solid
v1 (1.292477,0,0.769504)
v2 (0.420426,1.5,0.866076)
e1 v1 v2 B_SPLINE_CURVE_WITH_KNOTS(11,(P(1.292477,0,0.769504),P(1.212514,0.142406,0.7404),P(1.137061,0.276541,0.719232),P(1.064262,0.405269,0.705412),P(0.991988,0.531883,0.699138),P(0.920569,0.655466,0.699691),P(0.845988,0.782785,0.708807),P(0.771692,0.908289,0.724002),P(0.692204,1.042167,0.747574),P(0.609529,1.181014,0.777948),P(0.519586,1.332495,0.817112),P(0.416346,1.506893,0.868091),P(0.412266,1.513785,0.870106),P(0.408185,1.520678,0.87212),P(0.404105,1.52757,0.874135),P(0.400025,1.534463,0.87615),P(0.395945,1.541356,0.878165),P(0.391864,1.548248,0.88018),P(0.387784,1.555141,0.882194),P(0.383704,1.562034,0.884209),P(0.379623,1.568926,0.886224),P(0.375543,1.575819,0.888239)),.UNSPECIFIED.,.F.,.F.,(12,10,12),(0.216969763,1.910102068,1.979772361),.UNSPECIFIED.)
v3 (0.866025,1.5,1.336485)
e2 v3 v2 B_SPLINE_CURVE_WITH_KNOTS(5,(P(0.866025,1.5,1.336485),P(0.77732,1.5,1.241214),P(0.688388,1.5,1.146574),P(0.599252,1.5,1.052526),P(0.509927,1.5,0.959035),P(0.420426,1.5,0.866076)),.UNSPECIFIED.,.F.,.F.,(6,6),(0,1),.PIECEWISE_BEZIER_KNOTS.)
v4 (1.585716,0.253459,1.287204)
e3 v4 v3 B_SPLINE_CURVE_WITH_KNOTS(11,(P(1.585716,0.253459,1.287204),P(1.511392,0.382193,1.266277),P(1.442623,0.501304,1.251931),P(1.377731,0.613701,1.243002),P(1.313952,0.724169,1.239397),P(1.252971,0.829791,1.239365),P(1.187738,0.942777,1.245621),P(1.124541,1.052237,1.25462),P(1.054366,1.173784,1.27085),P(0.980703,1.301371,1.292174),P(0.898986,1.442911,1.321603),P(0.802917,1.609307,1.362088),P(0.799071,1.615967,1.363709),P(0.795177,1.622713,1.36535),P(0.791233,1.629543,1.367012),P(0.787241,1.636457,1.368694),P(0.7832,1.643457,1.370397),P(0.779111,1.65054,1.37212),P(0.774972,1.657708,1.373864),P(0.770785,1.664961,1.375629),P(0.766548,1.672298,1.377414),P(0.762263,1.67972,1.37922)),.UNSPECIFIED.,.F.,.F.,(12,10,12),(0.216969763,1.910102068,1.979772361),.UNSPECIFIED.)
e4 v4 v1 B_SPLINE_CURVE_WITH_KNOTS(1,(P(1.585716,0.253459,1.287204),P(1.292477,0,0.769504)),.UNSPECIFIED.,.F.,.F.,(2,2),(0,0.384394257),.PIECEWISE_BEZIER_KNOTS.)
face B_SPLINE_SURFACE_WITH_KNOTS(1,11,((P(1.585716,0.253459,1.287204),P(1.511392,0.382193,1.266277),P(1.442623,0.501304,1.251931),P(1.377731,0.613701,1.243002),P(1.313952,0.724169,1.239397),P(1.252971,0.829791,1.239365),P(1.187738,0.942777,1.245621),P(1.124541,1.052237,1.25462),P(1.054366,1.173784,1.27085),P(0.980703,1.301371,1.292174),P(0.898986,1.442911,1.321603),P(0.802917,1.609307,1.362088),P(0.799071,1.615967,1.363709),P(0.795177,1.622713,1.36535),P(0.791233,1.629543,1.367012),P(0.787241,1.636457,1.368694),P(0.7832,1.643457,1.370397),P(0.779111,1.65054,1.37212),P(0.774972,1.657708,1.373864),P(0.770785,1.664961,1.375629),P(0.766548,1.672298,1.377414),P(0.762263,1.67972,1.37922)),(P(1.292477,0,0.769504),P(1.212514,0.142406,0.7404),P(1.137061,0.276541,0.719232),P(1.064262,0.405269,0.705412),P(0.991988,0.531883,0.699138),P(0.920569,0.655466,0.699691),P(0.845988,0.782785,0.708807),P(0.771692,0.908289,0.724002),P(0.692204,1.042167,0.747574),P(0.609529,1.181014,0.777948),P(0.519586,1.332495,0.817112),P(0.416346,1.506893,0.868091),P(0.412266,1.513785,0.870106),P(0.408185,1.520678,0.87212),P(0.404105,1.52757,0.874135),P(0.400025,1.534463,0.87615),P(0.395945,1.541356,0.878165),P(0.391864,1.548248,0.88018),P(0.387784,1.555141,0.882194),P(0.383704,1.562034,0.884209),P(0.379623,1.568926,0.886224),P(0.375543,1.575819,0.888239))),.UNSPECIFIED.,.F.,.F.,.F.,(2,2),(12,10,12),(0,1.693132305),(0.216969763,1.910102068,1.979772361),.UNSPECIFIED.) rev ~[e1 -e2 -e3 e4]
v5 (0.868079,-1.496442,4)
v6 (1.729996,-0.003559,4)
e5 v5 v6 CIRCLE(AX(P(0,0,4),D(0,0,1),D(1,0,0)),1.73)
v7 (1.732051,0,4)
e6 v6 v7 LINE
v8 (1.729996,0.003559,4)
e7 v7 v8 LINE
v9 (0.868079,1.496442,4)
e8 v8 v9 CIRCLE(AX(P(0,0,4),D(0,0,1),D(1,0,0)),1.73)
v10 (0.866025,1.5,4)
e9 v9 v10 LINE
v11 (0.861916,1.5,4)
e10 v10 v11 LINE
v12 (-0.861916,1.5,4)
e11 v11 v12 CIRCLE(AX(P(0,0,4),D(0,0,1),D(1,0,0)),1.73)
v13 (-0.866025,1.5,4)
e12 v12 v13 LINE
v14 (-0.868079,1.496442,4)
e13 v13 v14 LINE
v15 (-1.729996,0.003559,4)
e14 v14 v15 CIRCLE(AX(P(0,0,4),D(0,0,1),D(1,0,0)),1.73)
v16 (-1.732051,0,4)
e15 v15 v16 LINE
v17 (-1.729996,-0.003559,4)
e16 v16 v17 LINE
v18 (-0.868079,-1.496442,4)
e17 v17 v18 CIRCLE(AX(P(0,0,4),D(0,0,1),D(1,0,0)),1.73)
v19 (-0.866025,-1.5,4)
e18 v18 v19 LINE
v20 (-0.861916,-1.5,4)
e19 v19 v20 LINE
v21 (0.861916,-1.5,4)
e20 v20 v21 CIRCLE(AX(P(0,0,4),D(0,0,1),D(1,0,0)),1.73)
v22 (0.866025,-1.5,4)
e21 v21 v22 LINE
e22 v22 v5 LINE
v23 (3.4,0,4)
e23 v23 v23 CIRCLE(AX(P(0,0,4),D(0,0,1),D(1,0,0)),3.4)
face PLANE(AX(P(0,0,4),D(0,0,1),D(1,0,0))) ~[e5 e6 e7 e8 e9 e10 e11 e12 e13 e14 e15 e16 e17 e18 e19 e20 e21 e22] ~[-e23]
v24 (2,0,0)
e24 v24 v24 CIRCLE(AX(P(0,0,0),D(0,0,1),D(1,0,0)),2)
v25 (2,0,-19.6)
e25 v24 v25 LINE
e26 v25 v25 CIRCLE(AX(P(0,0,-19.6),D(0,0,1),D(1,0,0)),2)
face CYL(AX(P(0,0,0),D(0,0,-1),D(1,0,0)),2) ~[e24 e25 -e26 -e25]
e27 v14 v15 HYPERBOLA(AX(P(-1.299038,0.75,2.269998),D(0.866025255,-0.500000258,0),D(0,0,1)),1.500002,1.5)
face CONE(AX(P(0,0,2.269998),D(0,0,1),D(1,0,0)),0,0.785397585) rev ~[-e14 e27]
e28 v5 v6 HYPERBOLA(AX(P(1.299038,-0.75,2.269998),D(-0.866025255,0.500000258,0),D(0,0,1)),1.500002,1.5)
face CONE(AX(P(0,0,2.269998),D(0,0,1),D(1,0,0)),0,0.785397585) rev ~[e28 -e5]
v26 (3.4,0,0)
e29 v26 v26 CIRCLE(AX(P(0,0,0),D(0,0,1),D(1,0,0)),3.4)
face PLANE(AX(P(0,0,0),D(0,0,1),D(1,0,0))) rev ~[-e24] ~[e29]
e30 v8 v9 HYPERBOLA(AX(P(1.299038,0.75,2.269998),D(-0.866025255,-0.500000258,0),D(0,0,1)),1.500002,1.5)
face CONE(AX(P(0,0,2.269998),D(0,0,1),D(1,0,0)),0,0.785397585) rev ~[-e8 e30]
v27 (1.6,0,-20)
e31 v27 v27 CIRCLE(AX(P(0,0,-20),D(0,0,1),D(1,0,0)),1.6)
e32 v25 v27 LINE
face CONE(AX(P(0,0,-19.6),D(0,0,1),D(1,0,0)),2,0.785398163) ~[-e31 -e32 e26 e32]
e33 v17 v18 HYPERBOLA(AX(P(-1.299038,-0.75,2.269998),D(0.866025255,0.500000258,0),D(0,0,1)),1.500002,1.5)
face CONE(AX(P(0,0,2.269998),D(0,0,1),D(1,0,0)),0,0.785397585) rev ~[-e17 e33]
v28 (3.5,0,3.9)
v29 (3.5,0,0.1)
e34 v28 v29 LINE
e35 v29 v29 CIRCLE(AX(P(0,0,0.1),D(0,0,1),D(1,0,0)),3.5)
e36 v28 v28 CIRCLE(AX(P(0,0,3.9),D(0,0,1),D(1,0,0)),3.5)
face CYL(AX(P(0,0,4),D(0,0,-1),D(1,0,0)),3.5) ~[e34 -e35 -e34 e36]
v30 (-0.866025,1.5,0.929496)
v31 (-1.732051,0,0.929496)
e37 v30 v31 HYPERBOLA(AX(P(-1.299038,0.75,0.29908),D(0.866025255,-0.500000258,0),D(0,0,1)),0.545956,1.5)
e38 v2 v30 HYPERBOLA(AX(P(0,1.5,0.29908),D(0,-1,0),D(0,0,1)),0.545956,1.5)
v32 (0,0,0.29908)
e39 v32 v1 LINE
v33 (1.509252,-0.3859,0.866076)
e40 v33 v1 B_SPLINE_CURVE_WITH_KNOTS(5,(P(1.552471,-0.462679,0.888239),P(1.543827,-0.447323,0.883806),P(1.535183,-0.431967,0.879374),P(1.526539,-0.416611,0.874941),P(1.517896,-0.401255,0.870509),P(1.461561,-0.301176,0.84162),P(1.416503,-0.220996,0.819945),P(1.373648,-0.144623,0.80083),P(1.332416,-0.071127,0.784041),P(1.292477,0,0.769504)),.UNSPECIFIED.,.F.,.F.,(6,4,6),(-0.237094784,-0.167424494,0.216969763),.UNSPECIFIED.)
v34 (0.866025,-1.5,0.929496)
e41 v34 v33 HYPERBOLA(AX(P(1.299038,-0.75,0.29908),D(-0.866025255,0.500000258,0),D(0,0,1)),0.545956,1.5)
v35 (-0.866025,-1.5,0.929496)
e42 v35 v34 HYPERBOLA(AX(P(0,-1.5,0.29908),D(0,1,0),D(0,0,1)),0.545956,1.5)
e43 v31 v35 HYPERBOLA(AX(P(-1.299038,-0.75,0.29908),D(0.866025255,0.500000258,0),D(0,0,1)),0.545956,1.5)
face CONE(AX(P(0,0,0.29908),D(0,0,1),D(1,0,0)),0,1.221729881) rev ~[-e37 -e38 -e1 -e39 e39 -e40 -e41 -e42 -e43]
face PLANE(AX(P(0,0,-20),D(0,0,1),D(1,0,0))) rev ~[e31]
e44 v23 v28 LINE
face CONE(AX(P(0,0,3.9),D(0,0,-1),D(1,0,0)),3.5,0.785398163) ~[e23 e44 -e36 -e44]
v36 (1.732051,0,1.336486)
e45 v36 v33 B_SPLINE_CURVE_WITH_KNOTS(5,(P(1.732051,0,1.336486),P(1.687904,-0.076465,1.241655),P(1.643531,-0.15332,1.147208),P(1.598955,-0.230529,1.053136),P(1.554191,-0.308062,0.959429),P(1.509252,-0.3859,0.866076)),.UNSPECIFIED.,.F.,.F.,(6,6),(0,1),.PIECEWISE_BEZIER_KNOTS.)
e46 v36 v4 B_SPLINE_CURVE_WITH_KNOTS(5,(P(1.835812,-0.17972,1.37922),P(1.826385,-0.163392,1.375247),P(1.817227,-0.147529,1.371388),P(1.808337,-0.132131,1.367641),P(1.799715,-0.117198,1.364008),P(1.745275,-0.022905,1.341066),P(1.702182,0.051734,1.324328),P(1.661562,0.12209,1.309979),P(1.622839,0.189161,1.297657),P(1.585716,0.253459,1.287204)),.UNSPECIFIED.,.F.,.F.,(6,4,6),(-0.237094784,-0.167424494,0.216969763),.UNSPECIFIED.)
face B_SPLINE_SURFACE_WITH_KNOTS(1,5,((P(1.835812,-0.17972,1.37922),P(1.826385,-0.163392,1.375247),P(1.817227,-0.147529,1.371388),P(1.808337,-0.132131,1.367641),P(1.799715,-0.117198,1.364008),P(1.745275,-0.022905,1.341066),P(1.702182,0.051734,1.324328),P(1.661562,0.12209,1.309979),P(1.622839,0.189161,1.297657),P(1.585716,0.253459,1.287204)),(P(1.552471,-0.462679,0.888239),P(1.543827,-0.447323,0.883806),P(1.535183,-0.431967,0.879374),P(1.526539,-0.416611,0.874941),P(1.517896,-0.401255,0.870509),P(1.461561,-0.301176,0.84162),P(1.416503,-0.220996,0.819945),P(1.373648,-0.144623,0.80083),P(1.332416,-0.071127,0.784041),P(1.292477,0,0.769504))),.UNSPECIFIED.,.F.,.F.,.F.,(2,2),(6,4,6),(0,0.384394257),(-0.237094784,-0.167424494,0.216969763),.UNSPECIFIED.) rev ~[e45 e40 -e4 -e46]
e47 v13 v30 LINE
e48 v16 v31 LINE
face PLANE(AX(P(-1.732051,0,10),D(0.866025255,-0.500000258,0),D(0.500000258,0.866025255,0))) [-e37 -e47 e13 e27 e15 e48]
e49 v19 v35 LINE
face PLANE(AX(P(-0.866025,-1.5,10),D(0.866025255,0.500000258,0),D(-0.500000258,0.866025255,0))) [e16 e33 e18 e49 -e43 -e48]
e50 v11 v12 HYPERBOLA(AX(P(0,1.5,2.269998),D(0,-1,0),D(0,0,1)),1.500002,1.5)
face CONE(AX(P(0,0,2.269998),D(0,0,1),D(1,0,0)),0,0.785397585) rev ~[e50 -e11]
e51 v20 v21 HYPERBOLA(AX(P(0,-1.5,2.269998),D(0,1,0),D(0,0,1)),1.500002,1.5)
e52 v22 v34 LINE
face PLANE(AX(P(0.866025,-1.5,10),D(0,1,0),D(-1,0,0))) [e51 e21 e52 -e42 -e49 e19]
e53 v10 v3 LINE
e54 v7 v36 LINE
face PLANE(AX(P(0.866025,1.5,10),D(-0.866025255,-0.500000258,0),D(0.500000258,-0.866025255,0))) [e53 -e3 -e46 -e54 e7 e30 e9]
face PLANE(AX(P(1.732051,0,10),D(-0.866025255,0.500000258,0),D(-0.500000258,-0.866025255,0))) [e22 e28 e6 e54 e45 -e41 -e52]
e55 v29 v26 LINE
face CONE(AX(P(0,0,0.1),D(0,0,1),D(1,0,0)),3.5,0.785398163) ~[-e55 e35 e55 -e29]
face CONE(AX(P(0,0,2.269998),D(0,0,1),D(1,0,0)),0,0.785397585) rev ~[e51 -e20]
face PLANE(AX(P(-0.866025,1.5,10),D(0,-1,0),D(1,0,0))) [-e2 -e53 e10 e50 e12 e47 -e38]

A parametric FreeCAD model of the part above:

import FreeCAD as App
import Part
import Sketcher
from FreeCAD import Vector
Q = App.Units.Quantity


def edges_at(feature, points):
    """Names of the edges that pass closest to the given points."""
    edges = feature.Shape.Edges
    near = lambda p: min(range(len(edges)), key=lambda i: edges[i].distToShape(Part.Vertex(*p))[0])
    return sorted({f"Edge{near(p) + 1}" for p in points})

doc = App.newDocument("Part")
params = doc.addObject("Spreadsheet::Sheet", "Params")
for row, (alias, value) in enumerate([
    ("sketch1_height", "8.7 mm"),
    ("sketch1_width", "2.75 mm"),
    ("revolution_angle", "360 deg"),
    ("sketch2_diameter", "7.5 mm"),
    ("sketch3_width", "2 mm"),
    ("sketch3_height", "20 mm"),
    ("sketch3_height2", "4 mm"),
    ("sketch3_width2", "1.5 mm"),
    ("sketch3_width3", "1.77 mm"),
    ("revolution2_angle", "360 deg"),
    ("chamfer_size", "0.4 mm"),
    ("chamfer2_size", "0.1 mm"),
    ("chamfer3_size", "0.4 mm"),
], start=1):
    params.set(f"A{row}", alias)
    params.set(f"B{row}", "=" + value)
    params.setAlias(f"B{row}", alias)

body = doc.addObject("PartDesign::Body", "Body")

sketch1 = body.newObject("Sketcher::SketchObject", "Sketch")
sketch1.AttachmentSupport = (doc.getObject("XZ_Plane"), [""])
sketch1.MapMode = "FlatFace"
sketch1.addGeometry(Part.LineSegment(Vector(0, 0.29908, 0), Vector(2.75, 1.3, 0)), False)
sketch1.addGeometry(Part.LineSegment(Vector(2.75, 1.3, 0), Vector(2.75, 10, 0)), False)
sketch1.addGeometry(Part.LineSegment(Vector(2.75, 10, 0), Vector(0, 10, 0)), False)
sketch1.addGeometry(Part.LineSegment(Vector(0, 10, 0), Vector(0, 0.29908, 0)), False)
sketch1.addConstraint(Sketcher.Constraint("Coincident", 0, 2, 1, 1))
sketch1.addConstraint(Sketcher.Constraint("Coincident", 1, 2, 2, 1))
sketch1.addConstraint(Sketcher.Constraint("Coincident", 2, 2, 3, 1))
sketch1.addConstraint(Sketcher.Constraint("Coincident", 3, 2, 0, 1))
sketch1.addConstraint(Sketcher.Constraint("Vertical", 1))
sketch1.addConstraint(Sketcher.Constraint("Horizontal", 2))
sketch1.addConstraint(Sketcher.Constraint("Vertical", 3))
sketch1.addConstraint(Sketcher.Constraint("PointOnObject", 2, 2, -2))
sketch1.addConstraint(Sketcher.Constraint("DistanceY", 1, 1, 1, 2, 8.7))
sketch1.addConstraint(Sketcher.Constraint("DistanceY", -1, 1, 1, 2, 10.0))
sketch1.addConstraint(Sketcher.Constraint("DistanceX", 2, 2, 2, 1, 2.75))
sketch1.addConstraint(Sketcher.Constraint("DistanceY", 3, 2, 3, 1, 9.70092))
sketch1.setExpression("Constraints[8]", "Params.sketch1_height")
sketch1.setExpression("Constraints[10]", "Params.sketch1_width")
revolution = body.newObject("PartDesign::Revolution", "Revolution")
revolution.Profile = sketch1
revolution.ReferenceAxis = (sketch1, ["V_Axis"])
revolution.setExpression("Angle", "Params.revolution_angle")

sketch2 = body.newObject("Sketcher::SketchObject", "Sketch001")
sketch2.AttachmentSupport = (doc.getObject("XY_Plane"), [""])
sketch2.MapMode = "FlatFace"
sketch2.AttachmentOffset = App.Placement(Vector(0, 0, 10), App.Rotation())
sketch2.addGeometry(Part.Circle(Vector(0, 0, 0), Vector(0, 0, 1), 3.75), False)
sketch2.addGeometry(Part.LineSegment(Vector(1.732051, 0, 0), Vector(0.866025, -1.5, 0)), False)
sketch2.addGeometry(Part.LineSegment(Vector(0.866025, -1.5, 0), Vector(-0.866025, -1.5, 0)), False)
sketch2.addGeometry(Part.LineSegment(Vector(-0.866025, -1.5, 0), Vector(-1.732051, 0, 0)), False)
sketch2.addGeometry(Part.LineSegment(Vector(-1.732051, 0, 0), Vector(-0.866025, 1.5, 0)), False)
sketch2.addGeometry(Part.LineSegment(Vector(-0.866025, 1.5, 0), Vector(0.866025, 1.5, 0)), False)
sketch2.addGeometry(Part.LineSegment(Vector(0.866025, 1.5, 0), Vector(1.732051, 0, 0)), False)
sketch2.addConstraint(Sketcher.Constraint("Coincident", 1, 2, 2, 1))
sketch2.addConstraint(Sketcher.Constraint("Coincident", 2, 2, 3, 1))
sketch2.addConstraint(Sketcher.Constraint("Coincident", 3, 2, 4, 1))
sketch2.addConstraint(Sketcher.Constraint("Coincident", 4, 2, 5, 1))
sketch2.addConstraint(Sketcher.Constraint("Coincident", 5, 2, 6, 1))
sketch2.addConstraint(Sketcher.Constraint("Coincident", 6, 2, 1, 1))
sketch2.addConstraint(Sketcher.Constraint("Horizontal", 2))
sketch2.addConstraint(Sketcher.Constraint("Horizontal", 5))
sketch2.addConstraint(Sketcher.Constraint("Coincident", 0, 3, -1, 1))
sketch2.addConstraint(Sketcher.Constraint("Symmetric", 1, 2, 4, 2, -1, 1))
sketch2.addConstraint(Sketcher.Constraint("Symmetric", 3, 2, 6, 2, -1, 1))
sketch2.addConstraint(Sketcher.Constraint("PointOnObject", 3, 2, -1))
sketch2.addConstraint(Sketcher.Constraint("Parallel", 3, 6))
sketch2.addConstraint(Sketcher.Constraint("Vertical", 2, 2, 4, 2))
sketch2.addConstraint(Sketcher.Constraint("Diameter", 0, 7.5))
sketch2.addConstraint(Sketcher.Constraint("Angle", 1, Q("-120.000017 deg")))
sketch2.addConstraint(Sketcher.Constraint("DistanceY", 2, 2, 4, 2, 3.0))
sketch2.addConstraint(Sketcher.Constraint("DistanceX", 2, 2, 2, 1, 1.73205))
sketch2.setExpression("Constraints[14]", "Params.sketch2_diameter")
pocket1 = body.newObject("PartDesign::Pocket", "Pocket")
pocket1.Profile = sketch2
pocket1.Type = "ThroughAll"
body2 = doc.addObject("PartDesign::Body", "Body001")

sketch3 = body2.newObject("Sketcher::SketchObject", "Sketch002")
sketch3.AttachmentSupport = (doc.getObject("XZ_Plane001"), [""])
sketch3.MapMode = "FlatFace"
sketch3.addGeometry(Part.LineSegment(Vector(3.5, 4, 0), Vector(1.73, 4, 0)), False)
sketch3.addGeometry(Part.LineSegment(Vector(1.73, 4, 0), Vector(0, 2.269998, 0)), False)
sketch3.addGeometry(Part.LineSegment(Vector(0, 2.269998, 0), Vector(0, -20, 0)), False)
sketch3.addGeometry(Part.LineSegment(Vector(0, -20, 0), Vector(2, -20, 0)), False)
sketch3.addGeometry(Part.LineSegment(Vector(2, -20, 0), Vector(2, 0, 0)), False)
sketch3.addGeometry(Part.LineSegment(Vector(2, 0, 0), Vector(3.5, 0, 0)), False)
sketch3.addGeometry(Part.LineSegment(Vector(3.5, 0, 0), Vector(3.5, 4, 0)), False)
sketch3.addConstraint(Sketcher.Constraint("Coincident", 0, 2, 1, 1))
sketch3.addConstraint(Sketcher.Constraint("Coincident", 1, 2, 2, 1))
sketch3.addConstraint(Sketcher.Constraint("Coincident", 2, 2, 3, 1))
sketch3.addConstraint(Sketcher.Constraint("Coincident", 3, 2, 4, 1))
sketch3.addConstraint(Sketcher.Constraint("Coincident", 4, 2, 5, 1))
sketch3.addConstraint(Sketcher.Constraint("Coincident", 5, 2, 6, 1))
sketch3.addConstraint(Sketcher.Constraint("Coincident", 6, 2, 0, 1))
sketch3.addConstraint(Sketcher.Constraint("Horizontal", 0))
sketch3.addConstraint(Sketcher.Constraint("Vertical", 2))
sketch3.addConstraint(Sketcher.Constraint("Horizontal", 3))
sketch3.addConstraint(Sketcher.Constraint("Vertical", 4))
sketch3.addConstraint(Sketcher.Constraint("Horizontal", 5))
sketch3.addConstraint(Sketcher.Constraint("Vertical", 6))
sketch3.addConstraint(Sketcher.Constraint("PointOnObject", 1, 2, -2))
sketch3.addConstraint(Sketcher.Constraint("PointOnObject", 4, 2, -1))
sketch3.addConstraint(Sketcher.Constraint("DistanceX", 3, 1, 3, 2, 2.0))
sketch3.addConstraint(Sketcher.Constraint("DistanceY", 4, 1, 4, 2, 20.0))
sketch3.addConstraint(Sketcher.Constraint("DistanceY", 6, 1, 6, 2, 4.0))
sketch3.addConstraint(Sketcher.Constraint("DistanceX", 5, 1, 5, 2, 1.5))
sketch3.addConstraint(Sketcher.Constraint("DistanceX", 0, 2, 0, 1, 1.77))
sketch3.addConstraint(Sketcher.Constraint("DistanceY", 2, 2, 2, 1, 22.269998))
sketch3.setExpression("Constraints[15]", "Params.sketch3_width")
sketch3.setExpression("Constraints[16]", "Params.sketch3_height")
sketch3.setExpression("Constraints[17]", "Params.sketch3_height2")
sketch3.setExpression("Constraints[18]", "Params.sketch3_width2")
sketch3.setExpression("Constraints[19]", "Params.sketch3_width3")
revolution2 = body2.newObject("PartDesign::Revolution", "Revolution001")
revolution2.Profile = sketch3
revolution2.ReferenceAxis = (sketch3, ["V_Axis"])
revolution2.setExpression("Angle", "Params.revolution2_angle")
doc.recompute()

boolean = body2.newObject("PartDesign::Boolean", "Boolean")
boolean.Type = "Cut"
boolean.addObjects([body])
doc.recompute()

chamfer = body2.newObject("PartDesign::Chamfer", "Chamfer")
chamfer.Base = (boolean, edges_at(boolean, [(1.299, 0.75, 0.845)]))
chamfer.setExpression("Size", "Params.chamfer_size")
doc.recompute()

chamfer2 = body2.newObject("PartDesign::Chamfer", "Chamfer001")
chamfer2.Base = (chamfer, edges_at(chamfer, [(-3.5, 0, 4), (-3.5, 0, 0)]))
chamfer2.setExpression("Size", "Params.chamfer2_size")
doc.recompute()

chamfer3 = body2.newObject("PartDesign::Chamfer", "Chamfer002")
chamfer3.Base = (chamfer2, edges_at(chamfer2, [(-2, 0, -20)]))
chamfer3.setExpression("Size", "Params.chamfer3_size")

doc.recompute()
